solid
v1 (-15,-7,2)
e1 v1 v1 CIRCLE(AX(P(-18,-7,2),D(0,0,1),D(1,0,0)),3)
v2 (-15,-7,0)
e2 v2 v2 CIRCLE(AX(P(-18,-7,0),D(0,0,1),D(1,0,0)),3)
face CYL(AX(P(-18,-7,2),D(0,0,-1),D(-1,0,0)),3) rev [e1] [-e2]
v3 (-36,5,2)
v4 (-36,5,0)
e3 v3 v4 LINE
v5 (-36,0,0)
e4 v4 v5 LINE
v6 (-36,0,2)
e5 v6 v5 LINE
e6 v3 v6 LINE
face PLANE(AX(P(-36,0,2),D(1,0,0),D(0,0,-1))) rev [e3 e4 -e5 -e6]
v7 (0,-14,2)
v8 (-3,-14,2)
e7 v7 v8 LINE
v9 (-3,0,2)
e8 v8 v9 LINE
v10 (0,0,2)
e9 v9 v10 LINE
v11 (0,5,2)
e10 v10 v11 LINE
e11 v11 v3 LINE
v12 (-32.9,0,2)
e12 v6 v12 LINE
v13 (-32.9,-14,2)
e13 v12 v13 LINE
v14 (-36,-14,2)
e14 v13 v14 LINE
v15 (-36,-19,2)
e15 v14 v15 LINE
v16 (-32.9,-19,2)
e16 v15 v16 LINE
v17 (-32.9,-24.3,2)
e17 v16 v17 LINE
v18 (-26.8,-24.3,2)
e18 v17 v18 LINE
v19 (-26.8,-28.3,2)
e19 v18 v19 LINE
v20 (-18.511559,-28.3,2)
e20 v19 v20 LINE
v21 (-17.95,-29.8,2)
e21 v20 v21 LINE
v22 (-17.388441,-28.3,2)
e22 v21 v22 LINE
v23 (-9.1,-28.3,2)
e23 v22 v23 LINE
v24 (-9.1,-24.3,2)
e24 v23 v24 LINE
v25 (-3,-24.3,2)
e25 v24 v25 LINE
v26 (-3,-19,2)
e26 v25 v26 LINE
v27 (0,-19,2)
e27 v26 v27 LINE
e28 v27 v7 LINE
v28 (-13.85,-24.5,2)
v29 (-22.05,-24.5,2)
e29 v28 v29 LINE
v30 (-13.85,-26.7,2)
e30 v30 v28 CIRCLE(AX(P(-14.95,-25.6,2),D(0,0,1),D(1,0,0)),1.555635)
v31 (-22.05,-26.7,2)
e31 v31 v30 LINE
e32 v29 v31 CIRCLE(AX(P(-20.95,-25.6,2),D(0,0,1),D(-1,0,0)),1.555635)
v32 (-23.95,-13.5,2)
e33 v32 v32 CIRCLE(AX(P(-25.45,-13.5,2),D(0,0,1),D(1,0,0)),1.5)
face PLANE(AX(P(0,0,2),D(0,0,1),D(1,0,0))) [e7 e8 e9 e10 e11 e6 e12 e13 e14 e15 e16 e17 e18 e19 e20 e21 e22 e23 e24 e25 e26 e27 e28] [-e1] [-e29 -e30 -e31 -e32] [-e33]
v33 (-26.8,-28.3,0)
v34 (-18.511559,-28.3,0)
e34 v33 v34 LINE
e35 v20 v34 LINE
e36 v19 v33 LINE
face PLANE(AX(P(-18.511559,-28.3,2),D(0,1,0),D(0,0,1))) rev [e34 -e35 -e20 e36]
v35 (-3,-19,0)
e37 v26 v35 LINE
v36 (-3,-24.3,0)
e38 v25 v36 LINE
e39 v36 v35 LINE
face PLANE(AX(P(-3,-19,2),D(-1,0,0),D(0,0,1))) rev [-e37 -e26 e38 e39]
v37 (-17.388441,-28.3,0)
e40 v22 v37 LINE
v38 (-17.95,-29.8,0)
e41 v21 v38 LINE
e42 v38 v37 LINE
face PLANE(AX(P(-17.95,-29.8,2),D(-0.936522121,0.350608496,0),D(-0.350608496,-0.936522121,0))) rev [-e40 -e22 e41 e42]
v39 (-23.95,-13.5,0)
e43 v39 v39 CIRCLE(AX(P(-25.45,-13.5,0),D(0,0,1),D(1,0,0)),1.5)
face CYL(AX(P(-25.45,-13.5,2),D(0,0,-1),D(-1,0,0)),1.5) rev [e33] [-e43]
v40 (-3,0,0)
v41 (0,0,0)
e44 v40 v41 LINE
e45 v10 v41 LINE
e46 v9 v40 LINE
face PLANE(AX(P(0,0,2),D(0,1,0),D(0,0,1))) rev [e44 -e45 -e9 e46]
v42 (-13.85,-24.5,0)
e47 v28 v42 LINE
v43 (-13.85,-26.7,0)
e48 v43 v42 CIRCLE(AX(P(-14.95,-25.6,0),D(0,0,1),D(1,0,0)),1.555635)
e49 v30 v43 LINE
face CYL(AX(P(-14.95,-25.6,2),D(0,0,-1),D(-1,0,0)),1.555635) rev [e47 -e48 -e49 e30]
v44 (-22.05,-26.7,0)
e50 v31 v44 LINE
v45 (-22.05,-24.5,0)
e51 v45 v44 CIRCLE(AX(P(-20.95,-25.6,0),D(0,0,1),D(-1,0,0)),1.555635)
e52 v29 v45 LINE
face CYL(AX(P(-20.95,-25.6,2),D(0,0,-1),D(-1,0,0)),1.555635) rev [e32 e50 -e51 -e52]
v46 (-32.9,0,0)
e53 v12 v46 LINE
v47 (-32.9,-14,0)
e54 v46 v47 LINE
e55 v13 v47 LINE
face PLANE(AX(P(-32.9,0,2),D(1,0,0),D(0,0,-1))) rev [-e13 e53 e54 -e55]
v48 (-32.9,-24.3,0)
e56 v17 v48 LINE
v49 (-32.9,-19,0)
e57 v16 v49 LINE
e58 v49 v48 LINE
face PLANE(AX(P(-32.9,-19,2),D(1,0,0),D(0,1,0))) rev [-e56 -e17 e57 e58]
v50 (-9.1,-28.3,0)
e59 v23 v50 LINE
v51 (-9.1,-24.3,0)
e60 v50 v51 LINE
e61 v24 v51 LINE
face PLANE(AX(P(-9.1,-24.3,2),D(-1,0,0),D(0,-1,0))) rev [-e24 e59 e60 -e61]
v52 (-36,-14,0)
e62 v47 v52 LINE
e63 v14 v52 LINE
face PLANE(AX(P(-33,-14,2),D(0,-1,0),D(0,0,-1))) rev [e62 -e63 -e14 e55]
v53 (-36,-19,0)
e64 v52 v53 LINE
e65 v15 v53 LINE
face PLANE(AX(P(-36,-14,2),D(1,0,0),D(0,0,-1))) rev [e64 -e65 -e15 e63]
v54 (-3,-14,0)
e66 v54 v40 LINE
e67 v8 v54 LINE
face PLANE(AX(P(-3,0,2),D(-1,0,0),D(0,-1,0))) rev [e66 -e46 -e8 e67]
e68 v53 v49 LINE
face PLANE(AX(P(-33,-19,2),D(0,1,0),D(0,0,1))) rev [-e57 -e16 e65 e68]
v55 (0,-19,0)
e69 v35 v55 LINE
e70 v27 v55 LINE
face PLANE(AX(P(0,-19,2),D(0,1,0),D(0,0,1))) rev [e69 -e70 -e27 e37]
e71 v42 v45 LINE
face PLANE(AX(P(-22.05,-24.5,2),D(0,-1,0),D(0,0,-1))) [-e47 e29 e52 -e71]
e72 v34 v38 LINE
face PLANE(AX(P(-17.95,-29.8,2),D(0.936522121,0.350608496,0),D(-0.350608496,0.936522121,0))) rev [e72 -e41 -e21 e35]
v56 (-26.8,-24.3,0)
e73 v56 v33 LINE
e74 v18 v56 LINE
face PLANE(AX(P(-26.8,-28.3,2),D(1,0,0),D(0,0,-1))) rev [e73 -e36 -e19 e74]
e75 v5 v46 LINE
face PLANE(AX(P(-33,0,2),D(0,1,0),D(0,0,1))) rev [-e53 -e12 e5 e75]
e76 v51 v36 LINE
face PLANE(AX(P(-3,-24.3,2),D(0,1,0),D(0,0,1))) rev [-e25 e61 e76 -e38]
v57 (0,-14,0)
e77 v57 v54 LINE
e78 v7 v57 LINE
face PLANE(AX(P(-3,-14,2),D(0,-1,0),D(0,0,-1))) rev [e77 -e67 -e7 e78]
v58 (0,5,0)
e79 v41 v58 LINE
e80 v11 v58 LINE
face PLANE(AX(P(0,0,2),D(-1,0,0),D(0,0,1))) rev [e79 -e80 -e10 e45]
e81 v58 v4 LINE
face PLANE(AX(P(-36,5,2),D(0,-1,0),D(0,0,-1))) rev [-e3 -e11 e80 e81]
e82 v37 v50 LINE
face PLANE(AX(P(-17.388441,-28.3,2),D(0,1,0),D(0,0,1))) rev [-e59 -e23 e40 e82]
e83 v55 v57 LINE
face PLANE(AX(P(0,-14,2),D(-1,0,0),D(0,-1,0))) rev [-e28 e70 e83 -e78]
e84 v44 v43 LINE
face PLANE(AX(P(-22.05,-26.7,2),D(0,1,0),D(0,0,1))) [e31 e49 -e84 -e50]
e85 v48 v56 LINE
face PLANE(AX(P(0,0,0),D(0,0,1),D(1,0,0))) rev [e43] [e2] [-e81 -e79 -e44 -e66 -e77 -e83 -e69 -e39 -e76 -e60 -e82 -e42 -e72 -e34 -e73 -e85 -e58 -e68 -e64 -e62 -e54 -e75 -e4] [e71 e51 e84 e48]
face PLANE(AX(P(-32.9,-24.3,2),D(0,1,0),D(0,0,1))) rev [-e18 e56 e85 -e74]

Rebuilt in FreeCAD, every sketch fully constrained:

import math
import FreeCAD as App
import Part
import Sketcher

V = App.Vector

doc = App.newDocument("Part")
body = doc.addObject("PartDesign::Body", "Body")

sketch1 = body.newObject("Sketcher::SketchObject", "Sketch")
sketch1.AttachmentSupport = (doc.getObject("XY_Plane"), [""])
sketch1.MapMode = "FlatFace"
sketch1.addGeometry(Part.LineSegment(V(0, 0, 0), V(0, 5, 0)), False)
sketch1.addGeometry(Part.LineSegment(V(0, 5, 0), V(-36, 5, 0)), False)
sketch1.addGeometry(Part.LineSegment(V(-36, 5, 0), V(-36, 0, 0)), False)
sketch1.addGeometry(Part.LineSegment(V(-36, 0, 0), V(-32.9, 0, 0)), False)
sketch1.addGeometry(Part.LineSegment(V(-32.9, 0, 0), V(-32.9, -14, 0)), False)
sketch1.addGeometry(Part.LineSegment(V(-32.9, -14, 0), V(-36, -14, 0)), False)
sketch1.addGeometry(Part.LineSegment(V(-36, -14, 0), V(-36, -19, 0)), False)
sketch1.addGeometry(Part.LineSegment(V(-36, -19, 0), V(-32.9, -19, 0)), False)
sketch1.addGeometry(Part.LineSegment(V(-32.9, -19, 0), V(-32.9, -24.3, 0)), False)
sketch1.addGeometry(Part.LineSegment(V(-32.9, -24.3, 0), V(-26.8, -24.3, 0)), False)
sketch1.addGeometry(Part.LineSegment(V(-26.8, -24.3, 0), V(-26.8, -28.3, 0)), False)
sketch1.addGeometry(Part.LineSegment(V(-26.8, -28.3, 0), V(-18.5, -28.3, 0)), False)
sketch1.addGeometry(Part.LineSegment(V(-18.5, -28.3, 0), V(-17.9, -29.8, 0)), False)
sketch1.addGeometry(Part.LineSegment(V(-17.9, -29.8, 0), V(-17.4, -28.3, 0)), False)
sketch1.addGeometry(Part.LineSegment(V(-17.4, -28.3, 0), V(-9.1, -28.3, 0)), False)
sketch1.addGeometry(Part.LineSegment(V(-9.1, -28.3, 0), V(-9.1, -24.3, 0)), False)
sketch1.addGeometry(Part.LineSegment(V(-9.1, -24.3, 0), V(-3, -24.3, 0)), False)
sketch1.addGeometry(Part.LineSegment(V(-3, -24.3, 0), V(-3, -19, 0)), False)
sketch1.addGeometry(Part.LineSegment(V(-3, -19, 0), V(0, -19, 0)), False)
sketch1.addGeometry(Part.LineSegment(V(0, -19, 0), V(0, -14, 0)), False)
sketch1.addGeometry(Part.LineSegment(V(0, -14, 0), V(-3, -14, 0)), False)
sketch1.addGeometry(Part.LineSegment(V(-3, -14, 0), V(-3, 0, 0)), False)
sketch1.addGeometry(Part.LineSegment(V(-3, 0, 0), V(0, 0, 0)), False)
sketch1.addGeometry(Part.ArcOfCircle(Part.Circle(V(-21, -25.6, 0), V(0, 0, 1), 1.6), math.radians(135), math.radians(225)), False)
sketch1.addGeometry(Part.LineSegment(V(-22.1, -24.5, 0), V(-13.8, -24.5, 0)), False)
sketch1.addGeometry(Part.ArcOfCircle(Part.Circle(V(-14.9, -25.6, 0), V(0, 0, 1), 1.6), math.radians(-45), math.radians(45)), False)
sketch1.addGeometry(Part.LineSegment(V(-13.8, -26.7, 0), V(-22.1, -26.7, 0)), False)
sketch1.addGeometry(Part.Circle(V(-25.4, -13.5, 0), V(0, 0, 1), 1.5), False)
sketch1.addGeometry(Part.Circle(V(-18, -7, 0), V(0, 0, 1), 3), False)
sketch1.addConstraint(Sketcher.Constraint("Coincident", 0, 2, 1, 1))
sketch1.addConstraint(Sketcher.Constraint("Coincident", 1, 2, 2, 1))
sketch1.addConstraint(Sketcher.Constraint("Coincident", 2, 2, 3, 1))
sketch1.addConstraint(Sketcher.Constraint("Coincident", 3, 2, 4, 1))
sketch1.addConstraint(Sketcher.Constraint("Coincident", 4, 2, 5, 1))
sketch1.addConstraint(Sketcher.Constraint("Coincident", 5, 2, 6, 1))
sketch1.addConstraint(Sketcher.Constraint("Coincident", 6, 2, 7, 1))
sketch1.addConstraint(Sketcher.Constraint("Coincident", 7, 2, 8, 1))
sketch1.addConstraint(Sketcher.Constraint("Coincident", 8, 2, 9, 1))
sketch1.addConstraint(Sketcher.Constraint("Coincident", 9, 2, 10, 1))
sketch1.addConstraint(Sketcher.Constraint("Coincident", 10, 2, 11, 1))
sketch1.addConstraint(Sketcher.Constraint("Coincident", 11, 2, 12, 1))
sketch1.addConstraint(Sketcher.Constraint("Coincident", 12, 2, 13, 1))
sketch1.addConstraint(Sketcher.Constraint("Coincident", 13, 2, 14, 1))
sketch1.addConstraint(Sketcher.Constraint("Coincident", 14, 2, 15, 1))
sketch1.addConstraint(Sketcher.Constraint("Coincident", 15, 2, 16, 1))
sketch1.addConstraint(Sketcher.Constraint("Coincident", 16, 2, 17, 1))
sketch1.addConstraint(Sketcher.Constraint("Coincident", 17, 2, 18, 1))
sketch1.addConstraint(Sketcher.Constraint("Coincident", 18, 2, 19, 1))
sketch1.addConstraint(Sketcher.Constraint("Coincident", 19, 2, 20, 1))
sketch1.addConstraint(Sketcher.Constraint("Coincident", 20, 2, 21, 1))
sketch1.addConstraint(Sketcher.Constraint("Coincident", 21, 2, 22, 1))
sketch1.addConstraint(Sketcher.Constraint("Coincident", 22, 2, 0, 1))
sketch1.addConstraint(Sketcher.Constraint("Coincident", 23, 1, 24, 1))
sketch1.addConstraint(Sketcher.Constraint("Coincident", 24, 2, 25, 2))
sketch1.addConstraint(Sketcher.Constraint("Coincident", 25, 1, 26, 1))
sketch1.addConstraint(Sketcher.Constraint("Coincident", 26, 2, 23, 2))
sketch1.addConstraint(Sketcher.Constraint("Vertical", 0))
sketch1.addConstraint(Sketcher.Constraint("Horizontal", 1))
sketch1.addConstraint(Sketcher.Constraint("Vertical", 2))
sketch1.addConstraint(Sketcher.Constraint("Horizontal", 3))
sketch1.addConstraint(Sketcher.Constraint("Vertical", 4))
sketch1.addConstraint(Sketcher.Constraint("Horizontal", 5))
sketch1.addConstraint(Sketcher.Constraint("Vertical", 6))
sketch1.addConstraint(Sketcher.Constraint("Horizontal", 7))
sketch1.addConstraint(Sketcher.Constraint("Vertical", 8))
sketch1.addConstraint(Sketcher.Constraint("Horizontal", 9))
sketch1.addConstraint(Sketcher.Constraint("Vertical", 10))
sketch1.addConstraint(Sketcher.Constraint("Horizontal", 11))
sketch1.addConstraint(Sketcher.Constraint("Horizontal", 14))
sketch1.addConstraint(Sketcher.Constraint("Vertical", 15))
sketch1.addConstraint(Sketcher.Constraint("Horizontal", 16))
sketch1.addConstraint(Sketcher.Constraint("Vertical", 17))
sketch1.addConstraint(Sketcher.Constraint("Horizontal", 18))
sketch1.addConstraint(Sketcher.Constraint("Vertical", 19))
sketch1.addConstraint(Sketcher.Constraint("Horizontal", 20))
sketch1.addConstraint(Sketcher.Constraint("Vertical", 21))
sketch1.addConstraint(Sketcher.Constraint("Horizontal", 22))
sketch1.addConstraint(Sketcher.Constraint("Horizontal", 24))
sketch1.addConstraint(Sketcher.Constraint("Horizontal", 26))
sketch1.addConstraint(Sketcher.Constraint("Coincident", 22, 2, -1, 1))
sketch1.addConstraint(Sketcher.Constraint("Equal", 23, 25))
sketch1.addConstraint(Sketcher.Constraint("PointOnObject", 2, 2, -1))
sketch1.addConstraint(Sketcher.Constraint("PointOnObject", 18, 2, -2))
sketch1.addConstraint(Sketcher.Constraint("Horizontal", 23, 3, 25, 3))
sketch1.addConstraint(Sketcher.Constraint("Horizontal", 11, 2, 13, 2))
sketch1.addConstraint(Sketcher.Constraint("Horizontal", 9, 2, 15, 2))
sketch1.addConstraint(Sketcher.Constraint("Horizontal", 7, 2, 17, 2))
sketch1.addConstraint(Sketcher.Constraint("Horizontal", 5, 2, 19, 2))
sketch1.addConstraint(Sketcher.Constraint("Vertical", 2, 2, 5, 2))
sketch1.addConstraint(Sketcher.Constraint("Vertical", 4, 2, 7, 2))
sketch1.addConstraint(Sketcher.Constraint("Vertical", 17, 2, 20, 2))
sketch1.addConstraint(Sketcher.Constraint("Vertical", 24, 2, 25, 1))
sketch1.addConstraint(Sketcher.Constraint("Equal", 11, 14))
sketch1.addConstraint(Sketcher.Constraint("Equal", 9, 16))
sketch1.addConstraint(Sketcher.Constraint("Equal", 2, 6))
sketch1.addConstraint(Sketcher.Constraint("Equal", 12, 13))
sketch1.addConstraint(Sketcher.Constraint("Diameter", 27, 3.0))
sketch1.addConstraint(Sketcher.Constraint("Diameter", 28, 6.0))
sketch1.addConstraint(Sketcher.Constraint("DistanceX", 1, 2, 1, 1, 36.0))
sketch1.addConstraint(Sketcher.Constraint("DistanceX", 18, 1, 18, 2, 3.0))
sketch1.addConstraint(Sketcher.Constraint("DistanceY", 0, 1, 0, 2, 5.0))
sketch1.addConstraint(Sketcher.Constraint("DistanceY", 4, 2, 4, 1, 14.0))
sketch1.addConstraint(Sketcher.Constraint("DistanceY", 10, 2, 10, 1, 4.0))
sketch1.addConstraint(Sketcher.Constraint("DistanceX", 3, 1, 3, 2, 3.1))
sketch1.addConstraint(Sketcher.Constraint("DistanceX", 9, 1, 9, 2, 6.1))
sketch1.addConstraint(Sketcher.Constraint("DistanceX", 24, 1, 24, 2, 8.2))
sketch1.addConstraint(Sketcher.Constraint("DistanceY", 8, 2, 8, 1, 5.3))
sketch1.addConstraint(Sketcher.Constraint("DistanceX", 28, 3, -1, 1, 18.0))
sketch1.addConstraint(Sketcher.Constraint("DistanceY", 28, 3, -1, 1, 7.0))
sketch1.addConstraint(Sketcher.Constraint("DistanceX", 23, 3, 25, 3, 6.0))
sketch1.addConstraint(Sketcher.Constraint("DistanceX", 23, 3, 12, 2, 3.0))
sketch1.addConstraint(Sketcher.Constraint("DistanceY", 23, 3, -1, 1, 25.6))
sketch1.addConstraint(Sketcher.Constraint("DistanceY", 27, 3, -1, 1, 13.5))
sketch1.addConstraint(Sketcher.Constraint("DistanceY", 12, 2, -1, 1, 29.8))
sketch1.addConstraint(Sketcher.Constraint("DistanceY", 23, 1, -1, 1, 24.5))
sketch1.addConstraint(Sketcher.Constraint("DistanceX", 27, 3, 23, 3, 4.5))
sketch1.addConstraint(Sketcher.Constraint("DistanceX", 11, 1, 11, 2, 8.288441))
pad1 = body.newObject("PartDesign::Pad", "Pad")
pad1.Profile = sketch1
pad1.Length = 2

doc.recompute()
